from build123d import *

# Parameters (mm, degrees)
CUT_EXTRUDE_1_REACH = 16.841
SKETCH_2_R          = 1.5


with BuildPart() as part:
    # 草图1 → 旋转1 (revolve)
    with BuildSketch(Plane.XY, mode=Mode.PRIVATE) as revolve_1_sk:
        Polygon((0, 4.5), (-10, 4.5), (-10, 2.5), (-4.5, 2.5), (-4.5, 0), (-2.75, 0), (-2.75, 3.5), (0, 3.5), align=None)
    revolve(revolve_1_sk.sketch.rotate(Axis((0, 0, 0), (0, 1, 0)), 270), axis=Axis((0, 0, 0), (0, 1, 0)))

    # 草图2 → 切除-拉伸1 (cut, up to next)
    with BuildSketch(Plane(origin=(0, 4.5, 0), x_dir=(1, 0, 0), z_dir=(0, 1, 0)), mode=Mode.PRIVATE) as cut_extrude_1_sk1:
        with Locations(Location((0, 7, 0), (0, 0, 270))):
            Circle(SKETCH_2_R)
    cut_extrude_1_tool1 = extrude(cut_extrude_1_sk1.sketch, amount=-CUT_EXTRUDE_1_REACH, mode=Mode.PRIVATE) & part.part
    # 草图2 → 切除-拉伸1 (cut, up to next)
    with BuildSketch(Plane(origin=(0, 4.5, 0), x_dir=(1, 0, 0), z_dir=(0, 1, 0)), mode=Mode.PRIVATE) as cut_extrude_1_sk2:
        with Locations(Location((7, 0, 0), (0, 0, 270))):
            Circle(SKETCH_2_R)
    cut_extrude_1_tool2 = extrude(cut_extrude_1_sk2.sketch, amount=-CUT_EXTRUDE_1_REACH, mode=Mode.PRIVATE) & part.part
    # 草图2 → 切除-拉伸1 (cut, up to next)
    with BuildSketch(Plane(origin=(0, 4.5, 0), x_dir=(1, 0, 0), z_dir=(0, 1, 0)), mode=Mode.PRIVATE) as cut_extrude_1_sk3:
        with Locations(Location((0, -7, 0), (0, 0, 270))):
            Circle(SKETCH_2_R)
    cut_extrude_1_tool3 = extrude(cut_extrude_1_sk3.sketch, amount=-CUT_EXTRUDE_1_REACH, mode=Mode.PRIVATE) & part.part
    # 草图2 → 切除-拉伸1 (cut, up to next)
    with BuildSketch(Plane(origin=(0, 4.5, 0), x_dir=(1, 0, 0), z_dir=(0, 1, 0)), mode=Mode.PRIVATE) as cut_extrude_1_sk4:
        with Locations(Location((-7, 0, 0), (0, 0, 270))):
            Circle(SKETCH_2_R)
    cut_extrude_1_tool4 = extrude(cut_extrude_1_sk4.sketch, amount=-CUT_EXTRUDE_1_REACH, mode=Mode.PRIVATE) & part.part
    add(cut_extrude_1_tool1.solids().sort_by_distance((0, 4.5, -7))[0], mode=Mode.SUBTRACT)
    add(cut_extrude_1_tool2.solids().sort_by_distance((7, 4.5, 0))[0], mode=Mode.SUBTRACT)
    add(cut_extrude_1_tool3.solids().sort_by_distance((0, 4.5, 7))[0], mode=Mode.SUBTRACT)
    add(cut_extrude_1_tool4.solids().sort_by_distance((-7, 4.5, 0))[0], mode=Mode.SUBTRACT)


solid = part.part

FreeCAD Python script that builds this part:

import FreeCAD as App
import Part
import Sketcher
Q = App.Units.Quantity

doc = App.newDocument("Part")
body = doc.addObject("PartDesign::Body", "Body")

sketch1 = doc.addObject("Sketcher::SketchObject", "Sketch")
body.addObject(sketch1)
sketch1.AttachmentSupport = (doc.XY_Plane, [""])
sketch1.MapMode = "FlatFace"
sketch1.addGeometry([
    Part.LineSegment(App.Vector(0, 4.5, 0), App.Vector(-10, 4.5, 0)),
    Part.LineSegment(App.Vector(-10, 4.5, 0), App.Vector(-10, 2.5, 0)),
    Part.LineSegment(App.Vector(-10, 2.5, 0), App.Vector(-4.5, 2.5, 0)),
    Part.LineSegment(App.Vector(-4.5, 2.5, 0), App.Vector(-4.5, 0, 0)),
    Part.LineSegment(App.Vector(-4.5, 0, 0), App.Vector(-2.8, 0, 0)),
    Part.LineSegment(App.Vector(-2.8, 0, 0), App.Vector(-2.8, 3.5, 0)),
    Part.LineSegment(App.Vector(-2.8, 3.5, 0), App.Vector(0, 3.5, 0)),
    Part.LineSegment(App.Vector(0, 3.5, 0), App.Vector(0, 4.5, 0)),
], False)
sketch1.addConstraint([
    Sketcher.Constraint("Coincident", 0, 2, 1, 1),
    Sketcher.Constraint("Coincident", 1, 2, 2, 1),
    Sketcher.Constraint("Coincident", 2, 2, 3, 1),
    Sketcher.Constraint("Coincident", 3, 2, 4, 1),
    Sketcher.Constraint("Coincident", 4, 2, 5, 1),
    Sketcher.Constraint("Coincident", 5, 2, 6, 1),
    Sketcher.Constraint("Coincident", 6, 2, 7, 1),
    Sketcher.Constraint("Coincident", 7, 2, 0, 1),
    Sketcher.Constraint("Horizontal", 0),
    Sketcher.Constraint("Vertical", 1),
    Sketcher.Constraint("Horizontal", 2),
    Sketcher.Constraint("Vertical", 3),
    Sketcher.Constraint("Horizontal", 4),
    Sketcher.Constraint("Vertical", 5),
    Sketcher.Constraint("Horizontal", 6),
    Sketcher.Constraint("Vertical", 7),
    Sketcher.Constraint("PointOnObject", 3, 2, -1),
    Sketcher.Constraint("PointOnObject", 6, 2, -2),
    Sketcher.Constraint("DistanceX", 0, 2, 0, 1, Q("10 mm")),
    Sketcher.Constraint("DistanceY", 1, 2, 1, 1, Q("2 mm")),
    Sketcher.Constraint("DistanceY", 7, 1, 7, 2, Q("1 mm")),
    Sketcher.Constraint("DistanceX", 2, 1, 2, 2, Q("5.5 mm")),
    Sketcher.Constraint("DistanceY", 3, 2, 3, 1, Q("2.5 mm")),
    Sketcher.Constraint("DistanceX", 4, 1, 4, 2, Q("1.75 mm")),
])
revolution = doc.addObject("PartDesign::Revolution", "Revolution")
body.addObject(revolution)
revolution.Profile = sketch1
revolution.ReferenceAxis = (sketch1, ["V_Axis"])
revolution.Angle = 360

sketch2 = doc.addObject("Sketcher::SketchObject", "Sketch001")
body.addObject(sketch2)
sketch2.AttachmentSupport = (doc.XZ_Plane, [""])
sketch2.MapMode = "FlatFace"
sketch2.AttachmentOffset = App.Placement(App.Vector(0, 0, -4.5), App.Rotation())
sketch2.addGeometry(Part.Circle(App.Vector(0, -7, 0), App.Vector(0, 0, 1), 1.5), False)
sketch2.addConstraint([
    Sketcher.Constraint("PointOnObject", 0, 3, -2),
    Sketcher.Constraint("Diameter", 0, Q("3 mm")),
    Sketcher.Constraint("DistanceY", 0, 3, -1, 1, Q("7 mm")),
])
pocket1 = doc.addObject("PartDesign::Pocket", "Pocket")
body.addObject(pocket1)
pocket1.Profile = sketch2
pocket1.Type = "UpToFirst"
pocket1.Reversed = True

sketch3 = doc.addObject("Sketcher::SketchObject", "Sketch002")
body.addObject(sketch3)
sketch3.AttachmentSupport = (doc.XZ_Plane, [""])
sketch3.MapMode = "FlatFace"
sketch3.AttachmentOffset = App.Placement(App.Vector(0, 0, -4.5), App.Rotation())
sketch3.addGeometry(Part.Circle(App.Vector(7, 0, 0), App.Vector(0, 0, 1), 1.5), False)
sketch3.addConstraint([
    Sketcher.Constraint("PointOnObject", 0, 3, -1),
    Sketcher.Constraint("Diameter", 0, Q("3 mm")),
    Sketcher.Constraint("DistanceX", -1, 1, 0, 3, Q("7 mm")),
])
pocket2 = doc.addObject("PartDesign::Pocket", "Pocket001")
body.addObject(pocket2)
pocket2.Profile = sketch3
pocket2.Type = "UpToFirst"
pocket2.Reversed = True

sketch4 = doc.addObject("Sketcher::SketchObject", "Sketch003")
body.addObject(sketch4)
sketch4.AttachmentSupport = (doc.XZ_Plane, [""])
sketch4.MapMode = "FlatFace"
sketch4.AttachmentOffset = App.Placement(App.Vector(0, 0, -4.5), App.Rotation())
sketch4.addGeometry(Part.Circle(App.Vector(0, 7, 0), App.Vector(0, 0, 1), 1.5), False)
sketch4.addConstraint([
    Sketcher.Constraint("PointOnObject", 0, 3, -2),
    Sketcher.Constraint("Diameter", 0, Q("3 mm")),
    Sketcher.Constraint("DistanceY", -1, 1, 0, 3, Q("7 mm")),
])
pocket3 = doc.addObject("PartDesign::Pocket", "Pocket002")
body.addObject(pocket3)
pocket3.Profile = sketch4
pocket3.Type = "UpToFirst"
pocket3.Reversed = True

sketch5 = doc.addObject("Sketcher::SketchObject", "Sketch004")
body.addObject(sketch5)
sketch5.AttachmentSupport = (doc.XZ_Plane, [""])
sketch5.MapMode = "FlatFace"
sketch5.AttachmentOffset = App.Placement(App.Vector(0, 0, -4.5), App.Rotation())
sketch5.addGeometry(Part.Circle(App.Vector(-7, 0, 0), App.Vector(0, 0, 1), 1.5), False)
sketch5.addConstraint([
    Sketcher.Constraint("PointOnObject", 0, 3, -1),
    Sketcher.Constraint("Diameter", 0, Q("3 mm")),
    Sketcher.Constraint("DistanceX", 0, 3, -1, 1, Q("7 mm")),
])
pocket4 = doc.addObject("PartDesign::Pocket", "Pocket003")
body.addObject(pocket4)
pocket4.Profile = sketch5
pocket4.Type = "UpToFirst"
pocket4.Reversed = True

doc.recompute()
